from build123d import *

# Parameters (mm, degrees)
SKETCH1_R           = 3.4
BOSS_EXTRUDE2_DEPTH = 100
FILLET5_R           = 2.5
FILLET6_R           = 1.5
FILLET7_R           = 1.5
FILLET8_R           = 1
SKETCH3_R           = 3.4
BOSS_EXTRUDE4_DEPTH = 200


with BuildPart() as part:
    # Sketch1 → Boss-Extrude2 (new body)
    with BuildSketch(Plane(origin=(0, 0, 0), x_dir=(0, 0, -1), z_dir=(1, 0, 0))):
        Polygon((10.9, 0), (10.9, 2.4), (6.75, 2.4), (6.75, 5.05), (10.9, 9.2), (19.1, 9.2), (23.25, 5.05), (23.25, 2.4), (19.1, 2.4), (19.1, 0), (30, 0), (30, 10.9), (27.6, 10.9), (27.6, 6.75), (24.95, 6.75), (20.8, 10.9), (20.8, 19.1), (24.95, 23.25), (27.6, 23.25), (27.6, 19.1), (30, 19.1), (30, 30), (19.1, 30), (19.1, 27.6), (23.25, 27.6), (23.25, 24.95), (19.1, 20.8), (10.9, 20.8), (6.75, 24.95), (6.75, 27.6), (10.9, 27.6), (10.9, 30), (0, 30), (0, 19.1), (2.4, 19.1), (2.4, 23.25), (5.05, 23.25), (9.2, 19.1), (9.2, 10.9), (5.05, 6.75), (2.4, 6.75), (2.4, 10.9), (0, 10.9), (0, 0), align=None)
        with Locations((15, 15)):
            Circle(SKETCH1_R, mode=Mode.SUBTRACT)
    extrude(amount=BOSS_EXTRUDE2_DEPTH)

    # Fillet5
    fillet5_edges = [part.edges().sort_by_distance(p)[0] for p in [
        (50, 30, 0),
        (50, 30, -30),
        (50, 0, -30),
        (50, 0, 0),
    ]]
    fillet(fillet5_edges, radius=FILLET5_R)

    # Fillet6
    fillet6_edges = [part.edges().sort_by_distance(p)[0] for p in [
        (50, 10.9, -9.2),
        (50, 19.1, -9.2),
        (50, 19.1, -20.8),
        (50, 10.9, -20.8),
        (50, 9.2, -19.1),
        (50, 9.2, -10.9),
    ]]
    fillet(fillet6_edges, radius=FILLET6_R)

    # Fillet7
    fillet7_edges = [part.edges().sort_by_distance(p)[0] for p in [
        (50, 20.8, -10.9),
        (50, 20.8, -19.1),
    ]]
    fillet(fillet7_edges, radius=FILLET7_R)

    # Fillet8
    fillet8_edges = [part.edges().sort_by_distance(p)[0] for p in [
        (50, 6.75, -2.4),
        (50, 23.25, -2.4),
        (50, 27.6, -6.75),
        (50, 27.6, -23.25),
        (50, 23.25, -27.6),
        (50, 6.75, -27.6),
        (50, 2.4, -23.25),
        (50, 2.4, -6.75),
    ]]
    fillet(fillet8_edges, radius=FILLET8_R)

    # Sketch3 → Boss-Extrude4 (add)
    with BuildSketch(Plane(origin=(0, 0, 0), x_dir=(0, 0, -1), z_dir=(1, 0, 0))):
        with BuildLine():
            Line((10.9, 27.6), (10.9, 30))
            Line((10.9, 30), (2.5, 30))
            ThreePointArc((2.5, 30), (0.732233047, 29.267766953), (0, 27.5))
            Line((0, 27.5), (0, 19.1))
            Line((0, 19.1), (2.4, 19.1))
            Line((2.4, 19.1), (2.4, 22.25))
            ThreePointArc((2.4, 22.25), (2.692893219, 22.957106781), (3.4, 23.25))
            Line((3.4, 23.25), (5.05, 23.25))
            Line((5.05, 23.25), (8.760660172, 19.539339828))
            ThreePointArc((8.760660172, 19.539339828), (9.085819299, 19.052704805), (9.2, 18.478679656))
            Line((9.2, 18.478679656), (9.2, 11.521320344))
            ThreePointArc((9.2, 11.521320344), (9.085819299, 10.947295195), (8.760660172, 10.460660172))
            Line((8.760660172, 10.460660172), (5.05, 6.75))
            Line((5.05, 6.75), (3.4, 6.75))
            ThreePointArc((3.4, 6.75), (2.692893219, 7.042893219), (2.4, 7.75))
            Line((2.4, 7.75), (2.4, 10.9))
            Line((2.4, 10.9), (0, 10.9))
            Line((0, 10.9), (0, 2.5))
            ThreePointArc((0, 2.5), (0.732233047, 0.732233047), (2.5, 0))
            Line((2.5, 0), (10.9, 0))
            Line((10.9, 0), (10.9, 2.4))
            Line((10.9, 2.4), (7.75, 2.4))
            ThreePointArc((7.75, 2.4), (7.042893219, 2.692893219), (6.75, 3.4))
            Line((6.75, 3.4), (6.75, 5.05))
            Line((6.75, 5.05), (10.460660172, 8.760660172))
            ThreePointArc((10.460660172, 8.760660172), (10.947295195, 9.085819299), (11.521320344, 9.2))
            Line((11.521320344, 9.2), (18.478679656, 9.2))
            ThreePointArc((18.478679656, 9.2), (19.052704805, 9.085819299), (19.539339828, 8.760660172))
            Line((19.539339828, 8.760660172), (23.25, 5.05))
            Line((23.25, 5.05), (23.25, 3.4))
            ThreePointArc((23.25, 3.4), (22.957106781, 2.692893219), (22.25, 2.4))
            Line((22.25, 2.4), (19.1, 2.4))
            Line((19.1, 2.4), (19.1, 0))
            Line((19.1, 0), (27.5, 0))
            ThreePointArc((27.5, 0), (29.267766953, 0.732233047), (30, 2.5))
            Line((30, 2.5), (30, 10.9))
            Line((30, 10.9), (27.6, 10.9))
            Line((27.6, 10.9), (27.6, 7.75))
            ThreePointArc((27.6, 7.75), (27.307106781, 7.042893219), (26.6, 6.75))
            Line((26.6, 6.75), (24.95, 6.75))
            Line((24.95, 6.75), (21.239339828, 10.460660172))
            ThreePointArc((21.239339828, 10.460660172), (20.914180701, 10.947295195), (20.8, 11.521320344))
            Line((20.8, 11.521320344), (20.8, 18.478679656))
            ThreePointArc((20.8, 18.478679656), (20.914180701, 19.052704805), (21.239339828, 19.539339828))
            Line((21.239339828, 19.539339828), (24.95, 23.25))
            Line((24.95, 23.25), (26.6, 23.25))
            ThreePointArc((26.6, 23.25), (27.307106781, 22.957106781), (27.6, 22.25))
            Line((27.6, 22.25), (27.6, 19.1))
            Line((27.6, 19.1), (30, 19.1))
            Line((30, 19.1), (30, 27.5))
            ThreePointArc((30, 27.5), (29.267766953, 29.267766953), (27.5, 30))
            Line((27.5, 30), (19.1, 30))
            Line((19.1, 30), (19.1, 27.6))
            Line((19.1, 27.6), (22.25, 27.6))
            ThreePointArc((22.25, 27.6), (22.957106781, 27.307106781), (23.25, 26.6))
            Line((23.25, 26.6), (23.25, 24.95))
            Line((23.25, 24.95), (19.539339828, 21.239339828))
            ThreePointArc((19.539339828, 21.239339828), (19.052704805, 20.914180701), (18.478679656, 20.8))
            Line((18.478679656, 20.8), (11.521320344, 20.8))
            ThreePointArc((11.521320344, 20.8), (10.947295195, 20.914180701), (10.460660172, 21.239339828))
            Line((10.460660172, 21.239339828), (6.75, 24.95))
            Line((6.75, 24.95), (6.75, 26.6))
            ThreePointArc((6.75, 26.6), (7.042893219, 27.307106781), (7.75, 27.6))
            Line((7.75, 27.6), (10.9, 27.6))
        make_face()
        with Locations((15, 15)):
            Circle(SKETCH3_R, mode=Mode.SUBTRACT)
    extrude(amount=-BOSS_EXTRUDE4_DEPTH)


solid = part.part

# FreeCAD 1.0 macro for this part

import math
import FreeCAD as App
import Part
import Sketcher
from FreeCAD import Vector


def edges_at(feature, points):
    """Names of the edges that pass closest to the given points."""
    edges = feature.Shape.Edges
    near = lambda p: min(range(len(edges)), key=lambda i: edges[i].distToShape(Part.Vertex(*p))[0])
    return sorted({f"Edge{near(p) + 1}" for p in points})

doc = App.newDocument("Part")
params = doc.addObject("Spreadsheet::Sheet", "Params")
for row, (alias, value) in enumerate([
    ("sketch1_diameter", "6.8 mm"),
    ("sketch1_width", "2.4 mm"),
    ("sketch1_width2", "10.9 mm"),
    ("sketch1_width3", "8.2 mm"),
    ("sketch1_width4", "2.65 mm"),
    ("pad1_length", "100 mm"),
    ("fillet_radius", "2.5 mm"),
    ("fillet2_radius", "1.5 mm"),
    ("fillet3_radius", "1.5 mm"),
    ("fillet4_radius", "1 mm"),
    ("sketch2_radius", "1 mm"),
    ("sketch2_diameter", "6.8 mm"),
    ("sketch2_radius2", "2.5 mm"),
    ("sketch2_radius3", "1.5 mm"),
    ("sketch2_width", "2.4 mm"),
    ("pad2_length", "200 mm"),
], start=1):
    params.set(f"A{row}", alias)
    params.set(f"B{row}", "=" + value)
    params.setAlias(f"B{row}", alias)

body = doc.addObject("PartDesign::Body", "Body")

sketch1 = body.newObject("Sketcher::SketchObject", "Sketch")
sketch1.AttachmentSupport = (doc.getObject("YZ_Plane"), [""])
sketch1.MapMode = "FlatFace"
sketch1.addGeometry([
    Part.LineSegment(Vector(0, -10.9, 0), Vector(2.4, -10.9, 0)),
    Part.LineSegment(Vector(2.4, -10.9, 0), Vector(2.4, -6.8, 0)),
    Part.LineSegment(Vector(2.4, -6.8, 0), Vector(5, -6.8, 0)),
    Part.LineSegment(Vector(5, -6.8, 0), Vector(9.2, -10.9, 0)),
    Part.LineSegment(Vector(9.2, -10.9, 0), Vector(9.2, -19.1, 0)),
    Part.LineSegment(Vector(9.2, -19.1, 0), Vector(5, -23.2, 0)),
    Part.LineSegment(Vector(5, -23.2, 0), Vector(2.4, -23.2, 0)),
    Part.LineSegment(Vector(2.4, -23.2, 0), Vector(2.4, -19.1, 0)),
    Part.LineSegment(Vector(2.4, -19.1, 0), Vector(0, -19.1, 0)),
    Part.LineSegment(Vector(0, -19.1, 0), Vector(0, -30, 0)),
    Part.LineSegment(Vector(0, -30, 0), Vector(10.9, -30, 0)),
    Part.LineSegment(Vector(10.9, -30, 0), Vector(10.9, -27.6, 0)),
    Part.LineSegment(Vector(10.9, -27.6, 0), Vector(6.8, -27.6, 0)),
    Part.LineSegment(Vector(6.8, -27.6, 0), Vector(6.8, -24.9, 0)),
    Part.LineSegment(Vector(6.8, -24.9, 0), Vector(10.9, -20.8, 0)),
    Part.LineSegment(Vector(10.9, -20.8, 0), Vector(19.1, -20.8, 0)),
    Part.LineSegment(Vector(19.1, -20.8, 0), Vector(23.2, -24.9, 0)),
    Part.LineSegment(Vector(23.2, -24.9, 0), Vector(23.2, -27.6, 0)),
    Part.LineSegment(Vector(23.2, -27.6, 0), Vector(19.1, -27.6, 0)),
    Part.LineSegment(Vector(19.1, -27.6, 0), Vector(19.1, -30, 0)),
    Part.LineSegment(Vector(19.1, -30, 0), Vector(30, -30, 0)),
    Part.LineSegment(Vector(30, -30, 0), Vector(30, -19.1, 0)),
    Part.LineSegment(Vector(30, -19.1, 0), Vector(27.6, -19.1, 0)),
    Part.LineSegment(Vector(27.6, -19.1, 0), Vector(27.6, -23.2, 0)),
    Part.LineSegment(Vector(27.6, -23.2, 0), Vector(24.9, -23.2, 0)),
    Part.LineSegment(Vector(24.9, -23.2, 0), Vector(20.8, -19.1, 0)),
    Part.LineSegment(Vector(20.8, -19.1, 0), Vector(20.8, -10.9, 0)),
    Part.LineSegment(Vector(20.8, -10.9, 0), Vector(24.9, -6.8, 0)),
    Part.LineSegment(Vector(24.9, -6.8, 0), Vector(27.6, -6.8, 0)),
    Part.LineSegment(Vector(27.6, -6.8, 0), Vector(27.6, -10.9, 0)),
    Part.LineSegment(Vector(27.6, -10.9, 0), Vector(30, -10.9, 0)),
    Part.LineSegment(Vector(30, -10.9, 0), Vector(30, 0, 0)),
    Part.LineSegment(Vector(30, 0, 0), Vector(19.1, 0, 0)),
    Part.LineSegment(Vector(19.1, 0, 0), Vector(19.1, -2.4, 0)),
    Part.LineSegment(Vector(19.1, -2.4, 0), Vector(23.2, -2.4, 0)),
    Part.LineSegment(Vector(23.2, -2.4, 0), Vector(23.2, -5, 0)),
    Part.LineSegment(Vector(23.2, -5, 0), Vector(19.1, -9.2, 0)),
    Part.LineSegment(Vector(19.1, -9.2, 0), Vector(10.9, -9.2, 0)),
    Part.LineSegment(Vector(10.9, -9.2, 0), Vector(6.8, -5, 0)),
    Part.LineSegment(Vector(6.8, -5, 0), Vector(6.8, -2.4, 0)),
    Part.LineSegment(Vector(6.8, -2.4, 0), Vector(10.9, -2.4, 0)),
    Part.LineSegment(Vector(10.9, -2.4, 0), Vector(10.9, 0, 0)),
    Part.LineSegment(Vector(10.9, 0, 0), Vector(0, 0, 0)),
    Part.LineSegment(Vector(0, 0, 0), Vector(0, -10.9, 0)),
    Part.Circle(Vector(15, -15, 0), Vector(0, 0, 1), 3.4),
], False)
sketch1.addConstraint([
    Sketcher.Constraint("Coincident", 0, 2, 1, 1),
    Sketcher.Constraint("Coincident", 1, 2, 2, 1),
    Sketcher.Constraint("Coincident", 2, 2, 3, 1),
    Sketcher.Constraint("Coincident", 3, 2, 4, 1),
    Sketcher.Constraint("Coincident", 4, 2, 5, 1),
    Sketcher.Constraint("Coincident", 5, 2, 6, 1),
    Sketcher.Constraint("Coincident", 6, 2, 7, 1),
    Sketcher.Constraint("Coincident", 7, 2, 8, 1),
    Sketcher.Constraint("Coincident", 8, 2, 9, 1),
    Sketcher.Constraint("Coincident", 9, 2, 10, 1),
    Sketcher.Constraint("Coincident", 10, 2, 11, 1),
    Sketcher.Constraint("Coincident", 11, 2, 12, 1),
    Sketcher.Constraint("Coincident", 12, 2, 13, 1),
    Sketcher.Constraint("Coincident", 13, 2, 14, 1),
    Sketcher.Constraint("Coincident", 14, 2, 15, 1),
    Sketcher.Constraint("Coincident", 15, 2, 16, 1),
    Sketcher.Constraint("Coincident", 16, 2, 17, 1),
    Sketcher.Constraint("Coincident", 17, 2, 18, 1),
    Sketcher.Constraint("Coincident", 18, 2, 19, 1),
    Sketcher.Constraint("Coincident", 19, 2, 20, 1),
    Sketcher.Constraint("Coincident", 20, 2, 21, 1),
    Sketcher.Constraint("Coincident", 21, 2, 22, 1),
    Sketcher.Constraint("Coincident", 22, 2, 23, 1),
    Sketcher.Constraint("Coincident", 23, 2, 24, 1),
    Sketcher.Constraint("Coincident", 24, 2, 25, 1),
    Sketcher.Constraint("Coincident", 25, 2, 26, 1),
    Sketcher.Constraint("Coincident", 26, 2, 27, 1),
    Sketcher.Constraint("Coincident", 27, 2, 28, 1),
    Sketcher.Constraint("Coincident", 28, 2, 29, 1),
    Sketcher.Constraint("Coincident", 29, 2, 30, 1),
    Sketcher.Constraint("Coincident", 30, 2, 31, 1),
    Sketcher.Constraint("Coincident", 31, 2, 32, 1),
    Sketcher.Constraint("Coincident", 32, 2, 33, 1),
    Sketcher.Constraint("Coincident", 33, 2, 34, 1),
    Sketcher.Constraint("Coincident", 34, 2, 35, 1),
    Sketcher.Constraint("Coincident", 35, 2, 36, 1),
    Sketcher.Constraint("Coincident", 36, 2, 37, 1),
    Sketcher.Constraint("Coincident", 37, 2, 38, 1),
    Sketcher.Constraint("Coincident", 38, 2, 39, 1),
    Sketcher.Constraint("Coincident", 39, 2, 40, 1),
    Sketcher.Constraint("Coincident", 40, 2, 41, 1),
    Sketcher.Constraint("Coincident", 41, 2, 42, 1),
    Sketcher.Constraint("Coincident", 42, 2, 43, 1),
    Sketcher.Constraint("Coincident", 43, 2, 0, 1),
    Sketcher.Constraint("Horizontal", 0),
    Sketcher.Constraint("Vertical", 1),
    Sketcher.Constraint("Horizontal", 2),
    Sketcher.Constraint("Vertical", 4),
    Sketcher.Constraint("Horizontal", 6),
    Sketcher.Constraint("Vertical", 7),
    Sketcher.Constraint("Horizontal", 8),
    Sketcher.Constraint("Vertical", 9),
    Sketcher.Constraint("Horizontal", 10),
    Sketcher.Constraint("Vertical", 11),
    Sketcher.Constraint("Horizontal", 12),
    Sketcher.Constraint("Vertical", 13),
    Sketcher.Constraint("Horizontal", 15),
    Sketcher.Constraint("Vertical", 17),
    Sketcher.Constraint("Horizontal", 18),
    Sketcher.Constraint("Vertical", 19),
    Sketcher.Constraint("Horizontal", 20),
    Sketcher.Constraint("Vertical", 21),
    Sketcher.Constraint("Horizontal", 22),
    Sketcher.Constraint("Vertical", 23),
    Sketcher.Constraint("Horizontal", 24),
    Sketcher.Constraint("Vertical", 26),
    Sketcher.Constraint("Horizontal", 28),
    Sketcher.Constraint("Vertical", 29),
    Sketcher.Constraint("Horizontal", 30),
    Sketcher.Constraint("Vertical", 31),
    Sketcher.Constraint("Horizontal", 32),
    Sketcher.Constraint("Vertical", 33),
    Sketcher.Constraint("Horizontal", 34),
    Sketcher.Constraint("Vertical", 35),
    Sketcher.Constraint("Horizontal", 37),
    Sketcher.Constraint("Vertical", 39),
    Sketcher.Constraint("Horizontal", 40),
    Sketcher.Constraint("Vertical", 41),
    Sketcher.Constraint("Horizontal", 42),
    Sketcher.Constraint("Vertical", 43),
    Sketcher.Constraint("Coincident", 42, 2, -1, 1),
    Sketcher.Constraint("PointOnObject", 8, 2, -2),
    Sketcher.Constraint("PointOnObject", 31, 2, -1),
    Sketcher.Constraint("Perpendicular", 3, 5),
    Sketcher.Constraint("Parallel", 5, 14),
    Sketcher.Constraint("Perpendicular", 14, 16),
    Sketcher.Constraint("Parallel", 16, 25),
    Sketcher.Constraint("Perpendicular", 25, 27),
    Sketcher.Constraint("Parallel", 27, 36),
    Sketcher.Constraint("Perpendicular", 36, 38),
    Sketcher.Constraint("Horizontal", 0, 2, 3, 2),
    Sketcher.Constraint("Horizontal", 4, 2, 7, 2),
    Sketcher.Constraint("Horizontal", 13, 2, 16, 2),
    Sketcher.Constraint("Horizontal", 12, 2, 17, 2),
    Sketcher.Constraint("Horizontal", 10, 2, 19, 2),
    Sketcher.Constraint("Horizontal", 8, 2, 21, 2),
    Sketcher.Constraint("Horizontal", 6, 2, 23, 2),
    Sketcher.Constraint("Horizontal", 22, 2, 25, 2),
    Sketcher.Constraint("Horizontal", 3, 2, 26, 2),
    Sketcher.Constraint("Horizontal", 2, 2, 27, 2),
    Sketcher.Constraint("Horizontal", 26, 2, 29, 2),
    Sketcher.Constraint("Horizontal", 35, 2, 38, 2),
    Sketcher.Constraint("Horizontal", 34, 2, 39, 2),
    Sketcher.Constraint("Vertical", 2, 2, 5, 2),
    Sketcher.Constraint("Vertical", 1, 2, 6, 2),
    Sketcher.Constraint("Vertical", 11, 2, 14, 2),
    Sketcher.Constraint("Vertical", 15, 2, 18, 2),
    Sketcher.Constraint("Vertical", 24, 2, 27, 2),
    Sketcher.Constraint("Vertical", 23, 2, 28, 2),
    Sketcher.Constraint("Vertical", 21, 2, 30, 2),
    Sketcher.Constraint("Vertical", 19, 2, 32, 2),
    Sketcher.Constraint("Vertical", 17, 2, 34, 2),
    Sketcher.Constraint("Vertical", 33, 2, 36, 2),
    Sketcher.Constraint("Vertical", 14, 2, 37, 2),
    Sketcher.Constraint("Vertical", 37, 2, 40, 2),
    Sketcher.Constraint("Equal", 10, 20),
    Sketcher.Constraint("Equal", 8, 22),
    Sketcher.Constraint("Equal", 6, 24),
    Sketcher.Constraint("Equal", 40, 1),
    Sketcher.Constraint("Equal", 37, 4),
    Sketcher.Constraint("Equal", 42, 9),
    Sketcher.Constraint("Equal", 30, 11),
    Sketcher.Constraint("Equal", 28, 13),
    Sketcher.Constraint("Equal", 21, 31),
    Sketcher.Constraint("Equal", 19, 33),
    Sketcher.Constraint("Equal", 17, 35),
    Sketcher.Constraint("Diameter", 44, 6.8),
    Sketcher.Constraint("DistanceX", 0, 1, 0, 2, 2.4),
    Sketcher.Constraint("DistanceX", 10, 1, 10, 2, 10.9),
    Sketcher.Constraint("DistanceX", 15, 1, 15, 2, 8.2),
    Sketcher.Constraint("DistanceX", -1, 1, 44, 3, 15.0),
    Sketcher.Constraint("DistanceY", 44, 3, -1, 1, 15.0),
    Sketcher.Constraint("DistanceX", 2, 1, 2, 2, 2.65),
    Sketcher.Constraint("DistanceX", 12, 2, 12, 1, 4.15),
])
sketch1.setExpression("Constraints[126]", "Params.sketch1_diameter")
sketch1.setExpression("Constraints[127]", "Params.sketch1_width")
sketch1.setExpression("Constraints[128]", "Params.sketch1_width2")
sketch1.setExpression("Constraints[129]", "Params.sketch1_width3")
sketch1.setExpression("Constraints[132]", "Params.sketch1_width4")
pad1 = body.newObject("PartDesign::Pad", "Pad")
pad1.Profile = sketch1
pad1.setExpression("Length", "Params.pad1_length")
doc.recompute()

fillet = body.newObject("PartDesign::Fillet", "Fillet")
fillet.Base = (pad1, edges_at(pad1, [
    (50, 30, 0),
    (50, 30, -30),
    (50, 0, -30),
    (50, 0, 0),
]))
fillet.setExpression("Radius", "Params.fillet_radius")
doc.recompute()

fillet2 = body.newObject("PartDesign::Fillet", "Fillet001")
fillet2.Base = (fillet, edges_at(fillet, [
    (50, 10.9, -9.2),
    (50, 19.1, -9.2),
    (50, 19.1, -20.8),
    (50, 10.9, -20.8),
    (50, 9.2, -19.1),
    (50, 9.2, -10.9),
]))
fillet2.setExpression("Radius", "Params.fillet2_radius")
doc.recompute()

fillet3 = body.newObject("PartDesign::Fillet", "Fillet002")
fillet3.Base = (fillet2, edges_at(fillet2, [(50, 20.8, -10.9), (50, 20.8, -19.1)]))
fillet3.setExpression("Radius", "Params.fillet3_radius")
doc.recompute()

fillet4 = body.newObject("PartDesign::Fillet", "Fillet003")
fillet4.Base = (fillet3, edges_at(fillet3, [
    (50, 6.75, -2.4),
    (50, 23.25, -2.4),
    (50, 27.6, -6.75),
    (50, 27.6, -23.25),
    (50, 23.25, -27.6),
    (50, 6.75, -27.6),
    (50, 2.4, -23.25),
    (50, 2.4, -6.75),
]))
fillet4.setExpression("Radius", "Params.fillet4_radius")

sketch2 = body.newObject("Sketcher::SketchObject", "Sketch001")
sketch2.AttachmentSupport = (doc.getObject("YZ_Plane"), [""])
sketch2.MapMode = "FlatFace"
sketch2.addGeometry([
    Part.LineSegment(Vector(27.6, -10.9, 0), Vector(30, -10.9, 0)),
    Part.LineSegment(Vector(30, -10.9, 0), Vector(30, -2.5, 0)),
    Part.ArcOfCircle(Part.Circle(Vector(27.5, -2.5, 0), Vector(0, 0, 1), 2.5), math.radians(0), math.radians(90)),
    Part.LineSegment(Vector(27.5, 0, 0), Vector(19.1, 0, 0)),
    Part.LineSegment(Vector(19.1, 0, 0), Vector(19.1, -2.4, 0)),
    Part.LineSegment(Vector(19.1, -2.4, 0), Vector(22.2, -2.4, 0)),
    Part.ArcOfCircle(Part.Circle(Vector(22.2, -3.4, 0), Vector(0, 0, 1), 1), math.radians(0), math.radians(90)),
    Part.LineSegment(Vector(23.2, -3.4, 0), Vector(23.2, -5, 0)),
    Part.LineSegment(Vector(23.2, -5, 0), Vector(19.5, -8.8, 0)),
    Part.ArcOfCircle(Part.Circle(Vector(18.5, -7.7, 0), Vector(0, 0, 1), 1.5), math.radians(-90), math.radians(-45)),
    Part.LineSegment(Vector(18.5, -9.2, 0), Vector(11.5, -9.2, 0)),
    Part.ArcOfCircle(Part.Circle(Vector(11.5, -7.7, 0), Vector(0, 0, 1), 1.5), math.radians(-135), math.radians(-90)),
    Part.LineSegment(Vector(10.5, -8.8, 0), Vector(6.8, -5, 0)),
    Part.LineSegment(Vector(6.8, -5, 0), Vector(6.8, -3.4, 0)),
    Part.ArcOfCircle(Part.Circle(Vector(7.8, -3.4, 0), Vector(0, 0, 1), 1), math.radians(90), math.radians(180)),
    Part.LineSegment(Vector(7.8, -2.4, 0), Vector(10.9, -2.4, 0)),
    Part.LineSegment(Vector(10.9, -2.4, 0), Vector(10.9, 0, 0)),
    Part.LineSegment(Vector(10.9, 0, 0), Vector(2.5, 0, 0)),
    Part.ArcOfCircle(Part.Circle(Vector(2.5, -2.5, 0), Vector(0, 0, 1), 2.5), math.radians(90), math.radians(180)),
    Part.LineSegment(Vector(0, -2.5, 0), Vector(0, -10.9, 0)),
    Part.LineSegment(Vector(0, -10.9, 0), Vector(2.4, -10.9, 0)),
    Part.LineSegment(Vector(2.4, -10.9, 0), Vector(2.4, -7.8, 0)),
    Part.ArcOfCircle(Part.Circle(Vector(3.4, -7.8, 0), Vector(0, 0, 1), 1), math.radians(90), math.radians(180)),
    Part.LineSegment(Vector(3.4, -6.8, 0), Vector(5, -6.8, 0)),
    Part.LineSegment(Vector(5, -6.8, 0), Vector(8.8, -10.5, 0)),
    Part.ArcOfCircle(Part.Circle(Vector(7.7, -11.5, 0), Vector(0, 0, 1), 1.5), math.radians(0), math.radians(45)),
    Part.LineSegment(Vector(9.2, -11.5, 0), Vector(9.2, -18.5, 0)),
    Part.ArcOfCircle(Part.Circle(Vector(7.7, -18.5, 0), Vector(0, 0, 1), 1.5), math.radians(-45), math.radians(0)),
    Part.LineSegment(Vector(8.8, -19.5, 0), Vector(5, -23.2, 0)),
    Part.LineSegment(Vector(5, -23.2, 0), Vector(3.4, -23.2, 0)),
    Part.ArcOfCircle(Part.Circle(Vector(3.4, -22.2, 0), Vector(0, 0, 1), 1), math.radians(-180), math.radians(-90)),
    Part.LineSegment(Vector(2.4, -22.2, 0), Vector(2.4, -19.1, 0)),
    Part.LineSegment(Vector(2.4, -19.1, 0), Vector(0, -19.1, 0)),
    Part.LineSegment(Vector(0, -19.1, 0), Vector(0, -27.5, 0)),
    Part.ArcOfCircle(Part.Circle(Vector(2.5, -27.5, 0), Vector(0, 0, 1), 2.5), math.radians(180), math.radians(270)),
    Part.LineSegment(Vector(2.5, -30, 0), Vector(10.9, -30, 0)),
    Part.LineSegment(Vector(10.9, -30, 0), Vector(10.9, -27.6, 0)),
    Part.LineSegment(Vector(10.9, -27.6, 0), Vector(7.8, -27.6, 0)),
    Part.ArcOfCircle(Part.Circle(Vector(7.8, -26.6, 0), Vector(0, 0, 1), 1), math.radians(-180), math.radians(-90)),
    Part.LineSegment(Vector(6.8, -26.6, 0), Vector(6.8, -24.9, 0)),
    Part.LineSegment(Vector(6.8, -24.9, 0), Vector(10.5, -21.2, 0)),
    Part.ArcOfCircle(Part.Circle(Vector(11.5, -22.3, 0), Vector(0, 0, 1), 1.5), math.radians(90), math.radians(135)),
    Part.LineSegment(Vector(11.5, -20.8, 0), Vector(18.5, -20.8, 0)),
    Part.ArcOfCircle(Part.Circle(Vector(18.5, -22.3, 0), Vector(0, 0, 1), 1.5), math.radians(45), math.radians(90)),
    Part.LineSegment(Vector(19.5, -21.2, 0), Vector(23.2, -24.9, 0)),
    Part.LineSegment(Vector(23.2, -24.9, 0), Vector(23.2, -26.6, 0)),
    Part.ArcOfCircle(Part.Circle(Vector(22.2, -26.6, 0), Vector(0, 0, 1), 1), math.radians(-90), math.radians(0)),
    Part.LineSegment(Vector(22.2, -27.6, 0), Vector(19.1, -27.6, 0)),
    Part.LineSegment(Vector(19.1, -27.6, 0), Vector(19.1, -30, 0)),
    Part.LineSegment(Vector(19.1, -30, 0), Vector(27.5, -30, 0)),
    Part.ArcOfCircle(Part.Circle(Vector(27.5, -27.5, 0), Vector(0, 0, 1), 2.5), math.radians(-90), math.radians(0)),
    Part.LineSegment(Vector(30, -27.5, 0), Vector(30, -19.1, 0)),
    Part.LineSegment(Vector(30, -19.1, 0), Vector(27.6, -19.1, 0)),
    Part.LineSegment(Vector(27.6, -19.1, 0), Vector(27.6, -22.2, 0)),
    Part.ArcOfCircle(Part.Circle(Vector(26.6, -22.2, 0), Vector(0, 0, 1), 1), math.radians(-90), math.radians(0)),
    Part.LineSegment(Vector(26.6, -23.2, 0), Vector(24.9, -23.2, 0)),
    Part.LineSegment(Vector(24.9, -23.2, 0), Vector(21.2, -19.5, 0)),
    Part.ArcOfCircle(Part.Circle(Vector(22.3, -18.5, 0), Vector(0, 0, 1), 1.5), math.radians(180), math.radians(225)),
    Part.LineSegment(Vector(20.8, -18.5, 0), Vector(20.8, -11.5, 0)),
    Part.ArcOfCircle(Part.Circle(Vector(22.3, -11.5, 0), Vector(0, 0, 1), 1.5), math.radians(135), math.radians(180)),
    Part.LineSegment(Vector(21.2, -10.5, 0), Vector(24.9, -6.8, 0)),
    Part.LineSegment(Vector(24.9, -6.8, 0), Vector(26.6, -6.8, 0)),
    Part.ArcOfCircle(Part.Circle(Vector(26.6, -7.8, 0), Vector(0, 0, 1), 1), math.radians(0), math.radians(90)),
    Part.LineSegment(Vector(27.6, -7.8, 0), Vector(27.6, -10.9, 0)),
    Part.Circle(Vector(15, -15, 0), Vector(0, 0, 1), 3.4),
], False)
sketch2.addConstraint([
    Sketcher.Constraint("Coincident", 0, 2, 1, 1),
    Sketcher.Constraint("Tangent", 1, 2, 2, 1),
    Sketcher.Constraint("Tangent", 2, 2, 3, 1),
    Sketcher.Constraint("Coincident", 3, 2, 4, 1),
    Sketcher.Constraint("Coincident", 4, 2, 5, 1),
    Sketcher.Constraint("Tangent", 5, 2, 6, 2),
    Sketcher.Constraint("Tangent", 6, 1, 7, 1),
    Sketcher.Constraint("Coincident", 7, 2, 8, 1),
    Sketcher.Constraint("Tangent", 8, 2, 9, 2),
    Sketcher.Constraint("Tangent", 9, 1, 10, 1),
    Sketcher.Constraint("Tangent", 10, 2, 11, 2),
    Sketcher.Constraint("Tangent", 11, 1, 12, 1),
    Sketcher.Constraint("Coincident", 12, 2, 13, 1),
    Sketcher.Constraint("Tangent", 13, 2, 14, 2),
    Sketcher.Constraint("Tangent", 14, 1, 15, 1),
    Sketcher.Constraint("Coincident", 15, 2, 16, 1),
    Sketcher.Constraint("Coincident", 16, 2, 17, 1),
    Sketcher.Constraint("Tangent", 17, 2, 18, 1),
    Sketcher.Constraint("Tangent", 18, 2, 19, 1),
    Sketcher.Constraint("Coincident", 19, 2, 20, 1),
    Sketcher.Constraint("Coincident", 20, 2, 21, 1),
    Sketcher.Constraint("Tangent", 21, 2, 22, 2),
    Sketcher.Constraint("Tangent", 22, 1, 23, 1),
    Sketcher.Constraint("Coincident", 23, 2, 24, 1),
    Sketcher.Constraint("Tangent", 24, 2, 25, 2),
    Sketcher.Constraint("Tangent", 25, 1, 26, 1),
    Sketcher.Constraint("Tangent", 26, 2, 27, 2),
    Sketcher.Constraint("Tangent", 27, 1, 28, 1),
    Sketcher.Constraint("Coincident", 28, 2, 29, 1),
    Sketcher.Constraint("Tangent", 29, 2, 30, 2),
    Sketcher.Constraint("Tangent", 30, 1, 31, 1),
    Sketcher.Constraint("Coincident", 31, 2, 32, 1),
    Sketcher.Constraint("Coincident", 32, 2, 33, 1),
    Sketcher.Constraint("Tangent", 33, 2, 34, 1),
    Sketcher.Constraint("Tangent", 34, 2, 35, 1),
    Sketcher.Constraint("Coincident", 35, 2, 36, 1),
    Sketcher.Constraint("Coincident", 36, 2, 37, 1),
    Sketcher.Constraint("Tangent", 37, 2, 38, 2),
    Sketcher.Constraint("Tangent", 38, 1, 39, 1),
    Sketcher.Constraint("Coincident", 39, 2, 40, 1),
    Sketcher.Constraint("Tangent", 40, 2, 41, 2),
    Sketcher.Constraint("Tangent", 41, 1, 42, 1),
    Sketcher.Constraint("Tangent", 42, 2, 43, 2),
    Sketcher.Constraint("Tangent", 43, 1, 44, 1),
    Sketcher.Constraint("Coincident", 44, 2, 45, 1),
    Sketcher.Constraint("Tangent", 45, 2, 46, 2),
    Sketcher.Constraint("Tangent", 46, 1, 47, 1),
    Sketcher.Constraint("Coincident", 47, 2, 48, 1),
    Sketcher.Constraint("Coincident", 48, 2, 49, 1),
    Sketcher.Constraint("Tangent", 49, 2, 50, 1),
    Sketcher.Constraint("Tangent", 50, 2, 51, 1),
    Sketcher.Constraint("Coincident", 51, 2, 52, 1),
    Sketcher.Constraint("Coincident", 52, 2, 53, 1),
    Sketcher.Constraint("Tangent", 53, 2, 54, 2),
    Sketcher.Constraint("Tangent", 54, 1, 55, 1),
    Sketcher.Constraint("Coincident", 55, 2, 56, 1),
    Sketcher.Constraint("Tangent", 56, 2, 57, 2),
    Sketcher.Constraint("Tangent", 57, 1, 58, 1),
    Sketcher.Constraint("Tangent", 58, 2, 59, 2),
    Sketcher.Constraint("Tangent", 59, 1, 60, 1),
    Sketcher.Constraint("Coincident", 60, 2, 61, 1),
    Sketcher.Constraint("Tangent", 61, 2, 62, 2),
    Sketcher.Constraint("Tangent", 62, 1, 63, 1),
    Sketcher.Constraint("Coincident", 63, 2, 0, 1),
    Sketcher.Constraint("Horizontal", 0),
    Sketcher.Constraint("Vertical", 1),
    Sketcher.Constraint("Horizontal", 3),
    Sketcher.Constraint("Vertical", 4),
    Sketcher.Constraint("Horizontal", 5),
    Sketcher.Constraint("Vertical", 7),
    Sketcher.Constraint("Horizontal", 10),
    Sketcher.Constraint("Vertical", 13),
    Sketcher.Constraint("Horizontal", 15),
    Sketcher.Constraint("Vertical", 16),
    Sketcher.Constraint("Horizontal", 17),
    Sketcher.Constraint("Vertical", 19),
    Sketcher.Constraint("Horizontal", 20),
    Sketcher.Constraint("Vertical", 21),
    Sketcher.Constraint("Horizontal", 23),
    Sketcher.Constraint("Vertical", 26),
    Sketcher.Constraint("Horizontal", 29),
    Sketcher.Constraint("Vertical", 31),
    Sketcher.Constraint("Horizontal", 32),
    Sketcher.Constraint("Vertical", 33),
    Sketcher.Constraint("Horizontal", 35),
    Sketcher.Constraint("Vertical", 36),
    Sketcher.Constraint("Horizontal", 37),
    Sketcher.Constraint("Vertical", 39),
    Sketcher.Constraint("Horizontal", 42),
    Sketcher.Constraint("Vertical", 45),
    Sketcher.Constraint("Horizontal", 47),
    Sketcher.Constraint("Vertical", 48),
    Sketcher.Constraint("Horizontal", 49),
    Sketcher.Constraint("Vertical", 51),
    Sketcher.Constraint("Horizontal", 52),
    Sketcher.Constraint("Vertical", 53),
    Sketcher.Constraint("Horizontal", 55),
    Sketcher.Constraint("Vertical", 58),
    Sketcher.Constraint("Horizontal", 61),
    Sketcher.Constraint("Vertical", 63),
    Sketcher.Constraint("Equal", 9, 11),
    Sketcher.Constraint("Equal", 6, 14),
    Sketcher.Constraint("Equal", 2, 18),
    Sketcher.Constraint("Equal", 14, 22),
    Sketcher.Constraint("Equal", 11, 25),
    Sketcher.Constraint("Equal", 25, 27),
    Sketcher.Constraint("Equal", 22, 30),
    Sketcher.Constraint("Equal", 18, 34),
    Sketcher.Constraint("Equal", 30, 38),
    Sketcher.Constraint("Equal", 27, 41),
    Sketcher.Constraint("Equal", 41, 43),
    Sketcher.Constraint("Equal", 38, 46),
    Sketcher.Constraint("Equal", 34, 50),
    Sketcher.Constraint("Equal", 46, 54),
    Sketcher.Constraint("Equal", 43, 57),
    Sketcher.Constraint("Equal", 57, 59),
    Sketcher.Constraint("Equal", 54, 62),
    Sketcher.Constraint("PointOnObject", 2, 2, -1),
    Sketcher.Constraint("PointOnObject", 16, 2, -1),
    Sketcher.Constraint("PointOnObject", 18, 2, -2),
    Sketcher.Constraint("PointOnObject", 32, 2, -2),
    Sketcher.Constraint("Perpendicular", 8, 12),
    Sketcher.Constraint("Parallel", 12, 24),
    Sketcher.Constraint("Perpendicular", 24, 28),
    Sketcher.Constraint("Parallel", 28, 40),
    Sketcher.Constraint("Perpendicular", 40, 44),
    Sketcher.Constraint("Parallel", 44, 56),
    Sketcher.Constraint("Perpendicular", 56, 60),
    Sketcher.Constraint("Horizontal", 6, 3, 14, 3),
    Sketcher.Constraint("Horizontal", 38, 3, 46, 3),
    Sketcher.Constraint("Horizontal", 34, 3, 50, 3),
    Sketcher.Constraint("Horizontal", 30, 3, 54, 3),
    Sketcher.Constraint("Horizontal", 27, 3, 57, 3),
    Sketcher.Constraint("Horizontal", 25, 3, 59, 3),
    Sketcher.Constraint("Horizontal", 22, 3, 62, 3),
    Sketcher.Constraint("Horizontal", 8, 2, 11, 1),
    Sketcher.Constraint("Horizontal", 7, 2, 12, 2),
    Sketcher.Constraint("Horizontal", 0, 2, 19, 2),
    Sketcher.Constraint("Horizontal", 39, 2, 44, 2),
    Sketcher.Constraint("Horizontal", 32, 2, 51, 2),
    Sketcher.Constraint("Vertical", 22, 3, 30, 3),
    Sketcher.Constraint("Vertical", 14, 3, 38, 3),
    Sketcher.Constraint("Vertical", 11, 3, 41, 3),
    Sketcher.Constraint("Vertical", 9, 3, 43, 3),
    Sketcher.Constraint("Vertical", 2, 3, 50, 3),
    Sketcher.Constraint("Vertical", 54, 3, 62, 3),
    Sketcher.Constraint("Vertical", 23, 2, 28, 2),
    Sketcher.Constraint("Vertical", 16, 2, 35, 2),
    Sketcher.Constraint("Vertical", 4, 2, 47, 2),
    Sketcher.Constraint("Equal", 5, 15),
    Sketcher.Constraint("Equal", 3, 17),
    Sketcher.Constraint("Equal", 0, 20),
    Sketcher.Constraint("Equal", 29, 55),
    Sketcher.Constraint("Equal", 49, 1),
    Sketcher.Constraint("Equal", 52, 4),
    Sketcher.Constraint("Equal", 61, 7),
    Sketcher.Constraint("Equal", 47, 21),
    Sketcher.Constraint("Equal", 42, 26),
    Sketcher.Constraint("Equal", 21, 31),
    Sketcher.Constraint("Equal", 19, 33),
    Sketcher.Constraint("Equal", 16, 36),
    Sketcher.Constraint("Equal", 13, 39),
    Sketcher.Constraint("Equal", 12, 24),
    Sketcher.Constraint("Radius", 6, 1.0),
    Sketcher.Constraint("Diameter", 64, 6.8),
    Sketcher.Constraint("Radius", 2, 2.5),
    Sketcher.Constraint("Radius", 9, 1.5),
    Sketcher.Constraint("DistanceX", 0, 1, 0, 2, 2.4),
    Sketcher.Constraint("DistanceX", 3, 2, 3, 1, 8.4),
    Sketcher.Constraint("DistanceX", -1, 1, 64, 3, 15.0),
    Sketcher.Constraint("DistanceY", 64, 3, -1, 1, 15.0),
    Sketcher.Constraint("DistanceX", -1, 1, 0, 2, 30.0),
    Sketcher.Constraint("DistanceX", 5, 1, 5, 2, 3.15),
    Sketcher.Constraint("DistanceX", 23, 1, 23, 2, 1.65),
    Sketcher.Constraint("DistanceY", 9, 3, -1, 1, 7.7),
])
sketch2.setExpression("Constraints[163]", "Params.sketch2_radius")
sketch2.setExpression("Constraints[164]", "Params.sketch2_diameter")
sketch2.setExpression("Constraints[165]", "Params.sketch2_radius2")
sketch2.setExpression("Constraints[166]", "Params.sketch2_radius3")
sketch2.setExpression("Constraints[167]", "Params.sketch2_width")
pad2 = body.newObject("PartDesign::Pad", "Pad001")
pad2.Profile = sketch2
pad2.setExpression("Length", "Params.pad2_length")
pad2.Reversed = True

doc.recompute()
